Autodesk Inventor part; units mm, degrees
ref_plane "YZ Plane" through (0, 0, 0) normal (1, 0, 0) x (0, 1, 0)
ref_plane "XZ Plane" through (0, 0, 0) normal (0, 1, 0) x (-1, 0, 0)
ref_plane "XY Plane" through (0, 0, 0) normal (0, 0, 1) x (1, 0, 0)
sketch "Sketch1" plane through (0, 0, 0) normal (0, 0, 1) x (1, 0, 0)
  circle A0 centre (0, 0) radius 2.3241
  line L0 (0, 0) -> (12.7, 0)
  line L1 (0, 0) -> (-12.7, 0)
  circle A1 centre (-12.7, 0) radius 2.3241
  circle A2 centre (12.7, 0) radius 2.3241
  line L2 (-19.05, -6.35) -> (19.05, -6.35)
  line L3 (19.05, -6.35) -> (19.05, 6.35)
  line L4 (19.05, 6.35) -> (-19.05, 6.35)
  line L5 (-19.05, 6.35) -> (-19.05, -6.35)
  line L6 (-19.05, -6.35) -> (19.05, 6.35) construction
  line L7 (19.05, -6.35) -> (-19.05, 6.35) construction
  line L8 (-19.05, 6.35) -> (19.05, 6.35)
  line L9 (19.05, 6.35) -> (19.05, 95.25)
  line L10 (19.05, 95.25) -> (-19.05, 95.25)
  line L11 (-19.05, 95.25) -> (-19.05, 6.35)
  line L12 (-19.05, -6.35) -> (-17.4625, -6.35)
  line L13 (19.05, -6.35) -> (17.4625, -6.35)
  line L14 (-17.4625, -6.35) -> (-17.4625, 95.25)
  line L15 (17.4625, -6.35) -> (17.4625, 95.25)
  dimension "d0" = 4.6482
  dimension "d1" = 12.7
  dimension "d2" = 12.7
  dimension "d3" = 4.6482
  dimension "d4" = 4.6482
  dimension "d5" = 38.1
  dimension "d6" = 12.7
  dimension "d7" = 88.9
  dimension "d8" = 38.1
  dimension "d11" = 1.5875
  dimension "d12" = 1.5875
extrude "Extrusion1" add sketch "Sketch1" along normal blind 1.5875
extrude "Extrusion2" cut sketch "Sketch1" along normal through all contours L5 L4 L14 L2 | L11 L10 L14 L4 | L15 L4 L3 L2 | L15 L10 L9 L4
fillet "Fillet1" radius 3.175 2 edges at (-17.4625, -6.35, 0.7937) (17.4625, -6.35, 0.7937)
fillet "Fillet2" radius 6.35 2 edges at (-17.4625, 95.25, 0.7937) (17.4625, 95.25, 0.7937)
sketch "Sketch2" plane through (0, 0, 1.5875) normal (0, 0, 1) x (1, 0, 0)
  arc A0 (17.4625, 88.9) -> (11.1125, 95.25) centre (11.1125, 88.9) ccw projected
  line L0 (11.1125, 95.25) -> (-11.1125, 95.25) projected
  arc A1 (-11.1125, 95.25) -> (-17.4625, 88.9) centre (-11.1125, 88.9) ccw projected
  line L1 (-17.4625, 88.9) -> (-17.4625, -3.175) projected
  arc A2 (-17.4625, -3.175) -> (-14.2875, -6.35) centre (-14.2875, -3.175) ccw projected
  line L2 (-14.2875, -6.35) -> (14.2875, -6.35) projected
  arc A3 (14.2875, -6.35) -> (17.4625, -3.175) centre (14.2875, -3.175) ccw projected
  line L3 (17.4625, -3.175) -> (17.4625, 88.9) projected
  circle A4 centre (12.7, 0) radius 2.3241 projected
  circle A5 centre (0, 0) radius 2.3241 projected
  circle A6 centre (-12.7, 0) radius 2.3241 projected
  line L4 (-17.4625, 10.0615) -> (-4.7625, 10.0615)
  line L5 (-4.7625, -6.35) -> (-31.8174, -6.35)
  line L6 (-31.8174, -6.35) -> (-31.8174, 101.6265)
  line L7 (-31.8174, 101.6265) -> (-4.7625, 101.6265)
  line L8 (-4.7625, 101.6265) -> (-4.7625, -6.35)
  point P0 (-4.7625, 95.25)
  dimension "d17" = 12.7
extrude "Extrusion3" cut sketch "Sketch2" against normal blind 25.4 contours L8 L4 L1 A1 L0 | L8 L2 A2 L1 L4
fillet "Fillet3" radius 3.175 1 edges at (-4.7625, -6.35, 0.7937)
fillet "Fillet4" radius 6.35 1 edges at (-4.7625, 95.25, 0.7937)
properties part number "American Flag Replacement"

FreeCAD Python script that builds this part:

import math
import FreeCAD as App
import Part
import Sketcher
Q = App.Units.Quantity


def edges_at(feature, points):
    """Names of the edges that pass closest to the given points."""
    edges = feature.Shape.Edges
    near = lambda p: min(range(len(edges)), key=lambda i: edges[i].distToShape(Part.Vertex(*p))[0])
    return sorted({f"Edge{near(p) + 1}" for p in points})


def add_polygon(sketch, points):
    """Adds a closed chain of lines whose ends are joined by coincident constraints."""
    first, n = sketch.GeometryCount, len(points)
    for a, b in zip(points, points[1:] + points[:1]):
        sketch.addGeometry(Part.LineSegment(App.Vector(*a, 0), App.Vector(*b, 0)), False)
    for i in range(n):
        sketch.addConstraint(Sketcher.Constraint("Coincident", first + i, 2, first + (i + 1) % n, 1))

doc = App.newDocument("Part")
params = doc.addObject("Spreadsheet::Sheet", "Params")
for row, (alias, value) in enumerate([
    ("sketch1_diameter", "0.183 in"),
    ("sketch1_width", "1.5 in"),
    ("sketch1_height", "4 in"),
    ("pad1_length", "0.0625 in"),
    ("sketch2_width", "0.0625 in"),
    ("sketch2_height", "4 in"),
    ("fillet_radius", "0.125 in"),
    ("fillet2_radius", "0.25 in"),
    ("sketch3_radius", "0.25 in"),
    ("sketch3_height", "4 in"),
    ("sketch3_diameter", "0.183 in"),
    ("sketch3_radius2", "0.125 in"),
    ("pocket2_length", "1 in"),
    ("fillet3_radius", "0.125 in"),
    ("fillet4_radius", "0.25 in"),
], start=1):
    params.set(f"A{row}", alias)
    params.set(f"B{row}", "=" + value)
    params.setAlias(f"B{row}", alias)

body = doc.addObject("PartDesign::Body", "Body")

# Sketch on XY plane
sketch1 = body.newObject("Sketcher::SketchObject", "Sketch")
sketch1.AttachmentSupport = (doc.getObject("XY_Plane"), [""])
sketch1.MapMode = "FlatFace"
add_polygon(sketch1, [(-19.1, -6.3), (19.1, -6.3), (19.1, 95.2), (-19.1, 95.2)])  # lines 0-3
sketch1.addGeometry(Part.Circle(App.Vector(-12.7, 0, 0), App.Vector(0, 0, 1), 2.3), False)  # 4
sketch1.addGeometry(Part.ArcOfCircle(Part.Circle(App.Vector(0, 0, 0), App.Vector(0, 0, 1), 2.3), math.radians(0), math.radians(180)), False)  # 5
sketch1.addGeometry(Part.ArcOfCircle(Part.Circle(App.Vector(0, 0, 0), App.Vector(0, 0, 1), 2.3), math.radians(180), math.radians(360)), False)  # 6
sketch1.addGeometry(Part.Circle(App.Vector(12.7, 0, 0), App.Vector(0, 0, 1), 2.3), False)  # 7
sketch1.addConstraint([
    Sketcher.Constraint("Tangent", 5, 1, 6, 2),
    Sketcher.Constraint("Coincident", 6, 1, 5, 2),
    Sketcher.Constraint("Horizontal", 0),
    Sketcher.Constraint("Vertical", 1),
    Sketcher.Constraint("Horizontal", 2),
    Sketcher.Constraint("Vertical", 3),
    Sketcher.Constraint("Coincident", 5, 3, -1, 1),
    Sketcher.Constraint("Equal", 4, 5),
    Sketcher.Constraint("Equal", 6, 7),
    Sketcher.Constraint("Symmetric", 4, 3, 7, 3, -1, 1),
    Sketcher.Constraint("PointOnObject", 4, 3, -1),
    Sketcher.Constraint("PointOnObject", 5, 1, -1),
    Sketcher.Constraint("PointOnObject", 6, 1, -1),
    Sketcher.Constraint("Diameter", 4, Q("0.183 in")),
    Sketcher.Constraint("DistanceX", 0, 1, 0, 2, Q("1.5 in")),
    Sketcher.Constraint("DistanceX", 4, 3, -1, 1, Q("0.5 in")),
    Sketcher.Constraint("DistanceY", 1, 1, 1, 2, Q("4 in")),
    Sketcher.Constraint("DistanceX", -1, 1, 0, 2, Q("0.75 in")),
    Sketcher.Constraint("DistanceY", 0, 2, -1, 1, Q("0.25 in")),
])
sketch1.setExpression("Constraints[17]", "Params.sketch1_diameter")
sketch1.setExpression("Constraints[18]", "Params.sketch1_width")
sketch1.setExpression("Constraints[20]", "Params.sketch1_height")
pad1 = body.newObject("PartDesign::Pad", "Pad")
pad1.Profile = sketch1
pad1.setExpression("Length", "Params.pad1_length")

# Sketch on XY plane
sketch2 = body.newObject("Sketcher::SketchObject", "Sketch001")
sketch2.AttachmentSupport = (doc.getObject("XY_Plane"), [""])
sketch2.MapMode = "FlatFace"
add_polygon(sketch2, [(-19.1, -6.3), (-17.5, -6.3), (-17.5, 95.2), (-19.1, 95.2)])  # lines 0-3
add_polygon(sketch2, [(17.5, -6.3), (19.1, -6.3), (19.1, 95.2), (17.5, 95.2)])  # lines 4-7
sketch2.addConstraint([
    Sketcher.Constraint("Horizontal", 0),
    Sketcher.Constraint("Vertical", 1),
    Sketcher.Constraint("Horizontal", 2),
    Sketcher.Constraint("Vertical", 3),
    Sketcher.Constraint("Horizontal", 4),
    Sketcher.Constraint("Vertical", 5),
    Sketcher.Constraint("Horizontal", 6),
    Sketcher.Constraint("Vertical", 7),
    Sketcher.Constraint("Symmetric", 3, 2, 4, 2, -2),
    Sketcher.Constraint("Symmetric", 1, 2, 6, 2, -2),
    Sketcher.Constraint("DistanceX", 3, 2, 4, 2, Q("1.5 in")),
    Sketcher.Constraint("DistanceX", 0, 1, 0, 2, Q("0.0625 in")),
    Sketcher.Constraint("DistanceY", 1, 1, 1, 2, Q("4 in")),
    Sketcher.Constraint("DistanceY", 0, 2, -1, 1, Q("0.25 in")),
])
sketch2.setExpression("Constraints[19]", "Params.sketch2_width")
sketch2.setExpression("Constraints[20]", "Params.sketch2_height")
pocket1 = body.newObject("PartDesign::Pocket", "Pocket")
pocket1.Profile = sketch2
pocket1.Type = "ThroughAll"
pocket1.Reversed = True
doc.recompute()

fillet = body.newObject("PartDesign::Fillet", "Fillet")
fillet.Base = (pocket1, edges_at(pocket1, [(-17.462, -6.35, 0.794), (17.462, -6.35, 0.794)]))
fillet.setExpression("Radius", "Params.fillet_radius")
doc.recompute()

fillet2 = body.newObject("PartDesign::Fillet", "Fillet001")
fillet2.Base = (fillet, edges_at(fillet, [(-17.462, 95.25, 0.794), (17.462, 95.25, 0.794)]))
fillet2.setExpression("Radius", "Params.fillet2_radius")

# Sketch on XY plane
sketch3 = body.newObject("Sketcher::SketchObject", "Sketch002")
sketch3.AttachmentSupport = (doc.getObject("XY_Plane"), [""])
sketch3.MapMode = "FlatFace"
sketch3.AttachmentOffset = App.Placement(App.Vector(0, 0, 0.0625 * 25.4), App.Rotation())
sketch3.addGeometry([
    Part.LineSegment(App.Vector(-4.8, 95.2, 0), App.Vector(-11.1, 95.2, 0)),  # 0
    Part.ArcOfCircle(Part.Circle(App.Vector(-11.1, 88.9, 0), App.Vector(0, 0, 1), 6.3), math.radians(90), math.radians(180)),  # 1
    Part.LineSegment(App.Vector(-17.5, 88.9, 0), App.Vector(-17.5, -3.2, 0)),  # 2
    Part.ArcOfCircle(Part.Circle(App.Vector(-14.3, -3.2, 0), App.Vector(0, 0, 1), 3.2), math.radians(180), math.radians(270)),  # 3
    Part.LineSegment(App.Vector(-14.3, -6.3, 0), App.Vector(-4.8, -6.3, 0)),  # 4
    Part.LineSegment(App.Vector(-4.8, -6.3, 0), App.Vector(-4.8, 95.2, 0)),  # 5
    Part.Circle(App.Vector(-12.7, 0, 0), App.Vector(0, 0, 1), 2.3),  # 6
], False)
sketch3.addConstraint([
    Sketcher.Constraint("Tangent", 0, 2, 1, 1),
    Sketcher.Constraint("Tangent", 1, 2, 2, 1),
    Sketcher.Constraint("Tangent", 2, 2, 3, 1),
    Sketcher.Constraint("Tangent", 3, 2, 4, 1),
    Sketcher.Constraint("Coincident", 4, 2, 5, 1),
    Sketcher.Constraint("Coincident", 5, 2, 0, 1),
    Sketcher.Constraint("Horizontal", 0),
    Sketcher.Constraint("Vertical", 2),
    Sketcher.Constraint("Horizontal", 4),
    Sketcher.Constraint("Vertical", 5),
    Sketcher.Constraint("PointOnObject", 6, 3, -1),
    Sketcher.Constraint("Radius", 1, Q("0.25 in")),
    Sketcher.Constraint("DistanceX", 6, 3, -1, 1, Q("0.5 in")),
    Sketcher.Constraint("DistanceX", 2, 2, 4, 2, Q("0.5 in")),
    Sketcher.Constraint("DistanceY", 5, 1, 5, 2, Q("4 in")),
    Sketcher.Constraint("Diameter", 6, Q("0.183 in")),
    Sketcher.Constraint("Radius", 3, Q("0.125 in")),
    Sketcher.Constraint("DistanceY", -1, 1, 1, 3, Q("3.5 in")),
    Sketcher.Constraint("DistanceX", 1, 3, -1, 1, Q("0.4375 in")),
])
sketch3.setExpression("Constraints[11]", "Params.sketch3_radius")
sketch3.setExpression("Constraints[14]", "Params.sketch3_height")
sketch3.setExpression("Constraints[15]", "Params.sketch3_diameter")
sketch3.setExpression("Constraints[16]", "Params.sketch3_radius2")
pocket2 = body.newObject("PartDesign::Pocket", "Pocket001")
pocket2.Profile = sketch3
pocket2.setExpression("Length", "Params.pocket2_length")
doc.recompute()

fillet3 = body.newObject("PartDesign::Fillet", "Fillet002")
fillet3.Base = (pocket2, edges_at(pocket2, [(-4.763, -6.35, 0.794)]))
fillet3.setExpression("Radius", "Params.fillet3_radius")
doc.recompute()

fillet4 = body.newObject("PartDesign::Fillet", "Fillet003")
fillet4.Base = (fillet3, edges_at(fillet3, [(-4.763, 95.25, 0.794)]))
fillet4.setExpression("Radius", "Params.fillet4_radius")

doc.recompute()
